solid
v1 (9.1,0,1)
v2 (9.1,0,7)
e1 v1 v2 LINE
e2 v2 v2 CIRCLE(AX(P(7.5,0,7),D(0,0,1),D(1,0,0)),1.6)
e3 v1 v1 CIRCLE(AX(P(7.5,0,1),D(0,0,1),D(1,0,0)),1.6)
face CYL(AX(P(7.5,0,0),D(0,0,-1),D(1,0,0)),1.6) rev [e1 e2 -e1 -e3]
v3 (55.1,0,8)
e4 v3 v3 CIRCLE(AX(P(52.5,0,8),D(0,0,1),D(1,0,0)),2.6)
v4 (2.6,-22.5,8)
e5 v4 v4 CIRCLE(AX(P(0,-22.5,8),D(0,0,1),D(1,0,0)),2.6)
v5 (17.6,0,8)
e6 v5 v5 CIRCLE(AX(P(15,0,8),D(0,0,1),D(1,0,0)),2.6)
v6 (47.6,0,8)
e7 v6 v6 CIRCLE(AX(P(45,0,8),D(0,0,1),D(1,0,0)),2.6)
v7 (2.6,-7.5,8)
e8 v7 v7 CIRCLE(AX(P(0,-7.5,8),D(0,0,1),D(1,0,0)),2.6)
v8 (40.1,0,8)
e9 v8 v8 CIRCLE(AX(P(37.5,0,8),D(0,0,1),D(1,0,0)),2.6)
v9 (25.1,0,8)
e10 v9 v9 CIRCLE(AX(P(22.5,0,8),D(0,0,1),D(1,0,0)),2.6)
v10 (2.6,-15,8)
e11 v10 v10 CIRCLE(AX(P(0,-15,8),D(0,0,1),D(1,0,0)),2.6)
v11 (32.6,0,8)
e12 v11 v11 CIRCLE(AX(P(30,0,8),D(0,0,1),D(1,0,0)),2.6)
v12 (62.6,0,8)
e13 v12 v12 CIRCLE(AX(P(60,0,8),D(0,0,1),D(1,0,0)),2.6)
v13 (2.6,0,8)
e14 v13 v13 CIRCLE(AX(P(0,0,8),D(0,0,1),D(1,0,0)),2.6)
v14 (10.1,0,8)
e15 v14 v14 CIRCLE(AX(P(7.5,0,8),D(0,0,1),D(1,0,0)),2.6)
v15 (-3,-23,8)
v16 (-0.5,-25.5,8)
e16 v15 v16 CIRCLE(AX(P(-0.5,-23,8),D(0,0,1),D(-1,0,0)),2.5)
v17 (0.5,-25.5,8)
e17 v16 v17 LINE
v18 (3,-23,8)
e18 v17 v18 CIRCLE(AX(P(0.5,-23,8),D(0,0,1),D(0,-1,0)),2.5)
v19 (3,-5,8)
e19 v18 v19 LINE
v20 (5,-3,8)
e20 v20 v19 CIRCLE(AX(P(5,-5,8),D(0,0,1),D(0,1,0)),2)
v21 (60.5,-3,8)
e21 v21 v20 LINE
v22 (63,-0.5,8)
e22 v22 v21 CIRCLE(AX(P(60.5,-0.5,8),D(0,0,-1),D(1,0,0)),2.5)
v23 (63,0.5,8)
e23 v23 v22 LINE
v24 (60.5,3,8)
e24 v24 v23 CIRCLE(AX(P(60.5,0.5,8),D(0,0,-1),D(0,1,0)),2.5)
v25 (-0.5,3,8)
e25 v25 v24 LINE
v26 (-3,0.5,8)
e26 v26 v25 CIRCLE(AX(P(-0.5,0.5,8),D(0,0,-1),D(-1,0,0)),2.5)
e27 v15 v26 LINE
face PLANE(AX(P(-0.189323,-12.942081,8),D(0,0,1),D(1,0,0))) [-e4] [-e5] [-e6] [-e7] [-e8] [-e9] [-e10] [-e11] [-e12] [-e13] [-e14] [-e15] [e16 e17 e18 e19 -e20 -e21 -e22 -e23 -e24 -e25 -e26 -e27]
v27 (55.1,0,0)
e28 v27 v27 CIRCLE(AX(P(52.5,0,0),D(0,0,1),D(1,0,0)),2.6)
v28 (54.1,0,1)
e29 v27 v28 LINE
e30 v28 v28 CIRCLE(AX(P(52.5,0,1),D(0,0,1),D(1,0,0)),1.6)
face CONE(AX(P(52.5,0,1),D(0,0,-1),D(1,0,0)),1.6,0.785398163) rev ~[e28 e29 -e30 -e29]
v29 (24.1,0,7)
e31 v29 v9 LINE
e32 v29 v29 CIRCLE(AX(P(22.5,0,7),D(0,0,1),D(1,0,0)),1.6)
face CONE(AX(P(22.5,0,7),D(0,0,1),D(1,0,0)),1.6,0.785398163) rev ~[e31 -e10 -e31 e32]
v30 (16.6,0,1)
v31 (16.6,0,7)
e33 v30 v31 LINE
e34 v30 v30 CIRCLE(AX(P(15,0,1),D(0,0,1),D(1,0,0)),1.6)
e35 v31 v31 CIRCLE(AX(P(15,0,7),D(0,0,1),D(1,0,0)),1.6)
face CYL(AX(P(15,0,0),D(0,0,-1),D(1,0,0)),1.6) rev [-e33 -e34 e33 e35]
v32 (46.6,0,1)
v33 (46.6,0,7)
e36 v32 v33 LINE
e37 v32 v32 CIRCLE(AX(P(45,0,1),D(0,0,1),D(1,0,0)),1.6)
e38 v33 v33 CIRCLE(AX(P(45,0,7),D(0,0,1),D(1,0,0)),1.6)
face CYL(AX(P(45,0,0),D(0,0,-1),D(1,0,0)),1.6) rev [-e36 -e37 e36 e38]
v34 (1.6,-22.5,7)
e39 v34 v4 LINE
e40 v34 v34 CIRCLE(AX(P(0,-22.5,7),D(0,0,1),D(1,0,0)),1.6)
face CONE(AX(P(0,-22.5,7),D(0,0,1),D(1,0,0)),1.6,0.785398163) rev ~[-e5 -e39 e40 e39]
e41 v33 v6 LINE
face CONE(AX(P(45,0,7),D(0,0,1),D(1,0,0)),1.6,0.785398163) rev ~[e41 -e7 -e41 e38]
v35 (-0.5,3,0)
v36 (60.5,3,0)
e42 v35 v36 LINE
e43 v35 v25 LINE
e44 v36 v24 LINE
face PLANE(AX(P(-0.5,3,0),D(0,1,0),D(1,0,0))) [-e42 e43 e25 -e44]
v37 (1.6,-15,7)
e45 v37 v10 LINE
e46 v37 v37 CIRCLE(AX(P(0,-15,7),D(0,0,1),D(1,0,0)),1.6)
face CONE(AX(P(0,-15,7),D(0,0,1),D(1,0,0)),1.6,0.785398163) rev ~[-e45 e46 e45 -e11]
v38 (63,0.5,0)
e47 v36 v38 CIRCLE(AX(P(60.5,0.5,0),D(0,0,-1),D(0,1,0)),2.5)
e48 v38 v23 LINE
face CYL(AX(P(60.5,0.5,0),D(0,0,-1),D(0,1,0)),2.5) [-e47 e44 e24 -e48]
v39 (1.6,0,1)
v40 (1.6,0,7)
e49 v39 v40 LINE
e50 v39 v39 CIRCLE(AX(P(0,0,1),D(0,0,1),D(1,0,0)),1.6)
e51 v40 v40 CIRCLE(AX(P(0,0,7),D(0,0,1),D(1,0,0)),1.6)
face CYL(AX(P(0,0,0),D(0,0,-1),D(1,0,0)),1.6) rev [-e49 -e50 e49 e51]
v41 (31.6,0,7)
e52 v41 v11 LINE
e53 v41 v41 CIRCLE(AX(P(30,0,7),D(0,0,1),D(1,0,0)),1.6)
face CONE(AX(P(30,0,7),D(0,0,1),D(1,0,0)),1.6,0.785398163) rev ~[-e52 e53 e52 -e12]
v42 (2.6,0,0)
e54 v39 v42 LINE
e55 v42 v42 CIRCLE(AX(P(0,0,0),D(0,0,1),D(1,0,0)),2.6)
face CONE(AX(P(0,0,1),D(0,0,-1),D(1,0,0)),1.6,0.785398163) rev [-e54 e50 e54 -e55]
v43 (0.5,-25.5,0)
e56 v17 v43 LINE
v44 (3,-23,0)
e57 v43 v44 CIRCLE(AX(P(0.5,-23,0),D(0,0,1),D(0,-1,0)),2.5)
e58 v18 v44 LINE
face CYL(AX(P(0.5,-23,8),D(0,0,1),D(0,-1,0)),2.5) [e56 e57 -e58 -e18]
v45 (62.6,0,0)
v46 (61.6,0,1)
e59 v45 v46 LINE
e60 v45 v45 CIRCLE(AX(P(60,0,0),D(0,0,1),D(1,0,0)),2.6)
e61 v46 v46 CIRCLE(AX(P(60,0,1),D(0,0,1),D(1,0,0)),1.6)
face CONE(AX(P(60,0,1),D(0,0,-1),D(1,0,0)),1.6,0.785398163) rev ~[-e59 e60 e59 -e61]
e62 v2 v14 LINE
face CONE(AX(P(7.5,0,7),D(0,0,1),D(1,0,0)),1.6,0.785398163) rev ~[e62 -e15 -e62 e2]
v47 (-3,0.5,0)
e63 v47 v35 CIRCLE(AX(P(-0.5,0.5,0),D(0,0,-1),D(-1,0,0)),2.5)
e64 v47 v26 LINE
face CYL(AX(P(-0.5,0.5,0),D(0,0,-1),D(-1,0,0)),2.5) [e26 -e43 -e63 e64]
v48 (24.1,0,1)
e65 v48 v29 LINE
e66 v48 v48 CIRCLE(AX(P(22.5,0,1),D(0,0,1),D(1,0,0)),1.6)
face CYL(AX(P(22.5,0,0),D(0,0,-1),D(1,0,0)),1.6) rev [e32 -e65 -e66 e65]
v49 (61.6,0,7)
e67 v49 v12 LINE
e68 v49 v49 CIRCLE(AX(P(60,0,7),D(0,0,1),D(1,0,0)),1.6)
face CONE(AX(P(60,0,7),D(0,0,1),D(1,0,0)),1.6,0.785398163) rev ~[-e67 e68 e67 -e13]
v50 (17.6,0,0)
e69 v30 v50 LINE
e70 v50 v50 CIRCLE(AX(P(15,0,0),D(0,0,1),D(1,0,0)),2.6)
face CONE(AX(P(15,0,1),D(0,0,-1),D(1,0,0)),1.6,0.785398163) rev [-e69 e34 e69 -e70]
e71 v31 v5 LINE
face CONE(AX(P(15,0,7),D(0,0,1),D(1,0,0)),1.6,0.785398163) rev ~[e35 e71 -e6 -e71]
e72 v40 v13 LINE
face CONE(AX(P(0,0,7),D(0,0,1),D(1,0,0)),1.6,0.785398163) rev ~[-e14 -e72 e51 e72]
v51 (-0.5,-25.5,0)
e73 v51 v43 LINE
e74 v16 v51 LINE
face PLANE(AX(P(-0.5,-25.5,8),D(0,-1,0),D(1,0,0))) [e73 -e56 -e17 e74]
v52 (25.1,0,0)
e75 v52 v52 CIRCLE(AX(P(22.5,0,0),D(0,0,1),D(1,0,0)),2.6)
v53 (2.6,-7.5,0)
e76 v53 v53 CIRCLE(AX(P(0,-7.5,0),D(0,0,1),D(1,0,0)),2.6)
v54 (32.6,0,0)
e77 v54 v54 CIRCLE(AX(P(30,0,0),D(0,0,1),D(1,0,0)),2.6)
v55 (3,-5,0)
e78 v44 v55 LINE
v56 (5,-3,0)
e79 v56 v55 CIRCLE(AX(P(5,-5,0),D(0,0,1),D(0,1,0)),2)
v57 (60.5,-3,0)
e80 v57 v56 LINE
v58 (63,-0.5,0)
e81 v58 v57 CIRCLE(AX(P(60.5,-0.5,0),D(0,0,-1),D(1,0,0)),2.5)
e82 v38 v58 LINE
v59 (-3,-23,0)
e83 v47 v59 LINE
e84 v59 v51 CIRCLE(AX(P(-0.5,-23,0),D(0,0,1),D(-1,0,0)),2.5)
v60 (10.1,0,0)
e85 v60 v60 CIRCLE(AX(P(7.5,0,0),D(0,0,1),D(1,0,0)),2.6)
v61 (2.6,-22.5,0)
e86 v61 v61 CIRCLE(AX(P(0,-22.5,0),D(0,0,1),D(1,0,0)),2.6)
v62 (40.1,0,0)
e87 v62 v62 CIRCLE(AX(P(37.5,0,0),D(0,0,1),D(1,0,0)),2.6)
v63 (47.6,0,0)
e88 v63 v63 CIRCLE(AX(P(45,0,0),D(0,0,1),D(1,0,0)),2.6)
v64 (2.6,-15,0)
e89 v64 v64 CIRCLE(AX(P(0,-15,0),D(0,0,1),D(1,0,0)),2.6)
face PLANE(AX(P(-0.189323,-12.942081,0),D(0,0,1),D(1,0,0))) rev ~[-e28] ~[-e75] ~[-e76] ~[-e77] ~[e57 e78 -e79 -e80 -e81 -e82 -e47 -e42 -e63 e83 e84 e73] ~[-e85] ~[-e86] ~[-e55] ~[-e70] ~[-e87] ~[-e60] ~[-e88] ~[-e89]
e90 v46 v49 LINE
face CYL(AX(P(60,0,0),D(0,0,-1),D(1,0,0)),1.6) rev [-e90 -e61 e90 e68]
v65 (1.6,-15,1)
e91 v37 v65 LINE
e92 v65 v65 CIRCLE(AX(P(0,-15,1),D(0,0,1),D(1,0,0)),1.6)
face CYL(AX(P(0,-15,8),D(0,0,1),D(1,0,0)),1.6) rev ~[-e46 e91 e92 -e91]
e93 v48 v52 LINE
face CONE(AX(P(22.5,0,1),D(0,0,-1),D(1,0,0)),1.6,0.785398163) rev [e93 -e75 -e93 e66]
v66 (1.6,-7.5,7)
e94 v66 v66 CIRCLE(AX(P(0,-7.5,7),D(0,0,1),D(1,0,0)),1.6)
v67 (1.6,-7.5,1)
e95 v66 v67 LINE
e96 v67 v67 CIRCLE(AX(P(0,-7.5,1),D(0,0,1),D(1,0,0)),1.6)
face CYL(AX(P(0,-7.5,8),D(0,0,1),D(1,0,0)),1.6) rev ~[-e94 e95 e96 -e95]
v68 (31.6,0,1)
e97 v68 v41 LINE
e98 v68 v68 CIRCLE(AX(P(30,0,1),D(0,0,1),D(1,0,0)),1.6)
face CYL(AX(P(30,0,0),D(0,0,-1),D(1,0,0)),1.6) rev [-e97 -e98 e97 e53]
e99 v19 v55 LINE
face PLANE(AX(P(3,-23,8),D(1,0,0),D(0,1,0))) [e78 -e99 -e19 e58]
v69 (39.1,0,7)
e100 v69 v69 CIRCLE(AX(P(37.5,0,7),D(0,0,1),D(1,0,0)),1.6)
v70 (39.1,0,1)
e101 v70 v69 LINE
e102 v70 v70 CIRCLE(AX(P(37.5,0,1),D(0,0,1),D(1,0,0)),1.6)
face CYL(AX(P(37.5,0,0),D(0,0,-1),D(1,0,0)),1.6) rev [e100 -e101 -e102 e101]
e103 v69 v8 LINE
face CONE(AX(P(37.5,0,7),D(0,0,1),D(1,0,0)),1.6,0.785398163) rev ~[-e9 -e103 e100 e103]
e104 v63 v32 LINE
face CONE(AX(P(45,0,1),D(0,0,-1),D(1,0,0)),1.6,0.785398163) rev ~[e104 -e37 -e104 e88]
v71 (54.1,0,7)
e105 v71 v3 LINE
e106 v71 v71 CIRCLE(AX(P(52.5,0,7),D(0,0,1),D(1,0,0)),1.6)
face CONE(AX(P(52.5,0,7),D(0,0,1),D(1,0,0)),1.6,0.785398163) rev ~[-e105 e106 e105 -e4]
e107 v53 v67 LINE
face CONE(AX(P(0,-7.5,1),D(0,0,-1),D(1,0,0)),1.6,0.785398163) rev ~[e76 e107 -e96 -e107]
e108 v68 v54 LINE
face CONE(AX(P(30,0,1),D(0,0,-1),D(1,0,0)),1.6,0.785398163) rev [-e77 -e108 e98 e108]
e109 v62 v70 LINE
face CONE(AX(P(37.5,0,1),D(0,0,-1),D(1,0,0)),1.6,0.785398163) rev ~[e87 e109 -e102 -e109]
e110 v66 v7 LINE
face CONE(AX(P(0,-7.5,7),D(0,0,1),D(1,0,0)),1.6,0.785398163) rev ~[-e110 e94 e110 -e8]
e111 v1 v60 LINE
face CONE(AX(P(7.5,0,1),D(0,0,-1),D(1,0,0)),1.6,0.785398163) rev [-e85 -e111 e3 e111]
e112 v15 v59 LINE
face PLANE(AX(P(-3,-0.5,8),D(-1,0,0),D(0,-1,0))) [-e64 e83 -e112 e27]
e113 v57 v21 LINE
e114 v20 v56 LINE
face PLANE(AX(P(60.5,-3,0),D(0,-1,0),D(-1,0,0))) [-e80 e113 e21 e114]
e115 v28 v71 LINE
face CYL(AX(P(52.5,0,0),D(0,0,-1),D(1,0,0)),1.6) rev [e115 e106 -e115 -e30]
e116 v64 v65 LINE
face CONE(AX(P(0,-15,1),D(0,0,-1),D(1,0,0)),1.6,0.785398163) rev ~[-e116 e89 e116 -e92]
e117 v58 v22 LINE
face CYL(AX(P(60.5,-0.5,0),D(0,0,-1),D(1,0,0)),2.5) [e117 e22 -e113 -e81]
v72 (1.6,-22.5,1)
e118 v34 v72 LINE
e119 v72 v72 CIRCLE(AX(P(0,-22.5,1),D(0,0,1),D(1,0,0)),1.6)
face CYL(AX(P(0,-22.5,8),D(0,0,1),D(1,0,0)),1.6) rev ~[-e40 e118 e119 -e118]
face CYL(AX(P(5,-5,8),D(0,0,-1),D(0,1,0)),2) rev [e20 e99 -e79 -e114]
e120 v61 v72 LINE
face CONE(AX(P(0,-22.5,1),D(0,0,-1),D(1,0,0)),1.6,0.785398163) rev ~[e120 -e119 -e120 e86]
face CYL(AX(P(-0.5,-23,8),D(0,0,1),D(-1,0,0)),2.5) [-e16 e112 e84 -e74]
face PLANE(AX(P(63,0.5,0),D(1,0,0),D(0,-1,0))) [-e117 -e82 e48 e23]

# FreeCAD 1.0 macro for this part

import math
import FreeCAD as App
import Part
import Sketcher
Q = App.Units.Quantity


def edges_at(feature, points):
    """Names of the edges that pass closest to the given points."""
    edges = feature.Shape.Edges
    near = lambda p: min(range(len(edges)), key=lambda i: edges[i].distToShape(Part.Vertex(*p))[0])
    return sorted({f"Edge{near(p) + 1}" for p in points})

doc = App.newDocument("Part")
params = doc.addObject("Spreadsheet::Sheet", "Params")
for row, (alias, value) in enumerate([
    ("sketch1_diameter", "3.2 mm"),
    ("sketch1_radius", "2.5 mm"),
    ("sketch1_width", "61 mm"),
    ("sketch1_height", "1 mm"),
    ("pad1_length", "8 mm"),
    ("chamfer_size", "1 mm"),
    ("sketch2_diameter", "3.2 mm"),
    ("sketch2_radius", "2.5 mm"),
    ("sketch2_width", "1 mm"),
    ("sketch2_height", "20 mm"),
    ("pad2_length", "8 mm"),
    ("fillet_radius", "2 mm"),
    ("chamfer2_size", "1 mm"),
    ("chamfer3_size", "1 mm"),
    ("chamfer4_size", "1 mm"),
], start=1):
    params.set(f"A{row}", alias)
    params.set(f"B{row}", "=" + value)
    params.setAlias(f"B{row}", alias)

body = doc.addObject("PartDesign::Body", "Body")

# Sketch on XY plane
sketch1 = body.newObject("Sketcher::SketchObject", "Sketch")
sketch1.AttachmentSupport = (doc.getObject("XY_Plane"), [""])
sketch1.MapMode = "FlatFace"
sketch1.addGeometry(Part.LineSegment(App.Vector(60.5, 3, 0), App.Vector(-0.5, 3, 0)), False)
sketch1.addGeometry(Part.ArcOfCircle(Part.Circle(App.Vector(-0.5, 0.5, 0), App.Vector(0, 0, 1), 2.5), math.radians(90), math.radians(180)), False)
sketch1.addGeometry(Part.LineSegment(App.Vector(-3, 0.5, 0), App.Vector(-3, -0.5, 0)), False)
sketch1.addGeometry(Part.ArcOfCircle(Part.Circle(App.Vector(-0.5, -0.5, 0), App.Vector(0, 0, 1), 2.5), math.radians(180), math.radians(270)), False)
sketch1.addGeometry(Part.LineSegment(App.Vector(-0.5, -3, 0), App.Vector(60.5, -3, 0)), False)
sketch1.addGeometry(Part.ArcOfCircle(Part.Circle(App.Vector(60.5, -0.5, 0), App.Vector(0, 0, 1), 2.5), math.radians(-90), math.radians(0)), False)
sketch1.addGeometry(Part.LineSegment(App.Vector(63, -0.5, 0), App.Vector(63, 0.5, 0)), False)
sketch1.addGeometry(Part.ArcOfCircle(Part.Circle(App.Vector(60.5, 0.5, 0), App.Vector(0, 0, 1), 2.5), math.radians(0), math.radians(90)), False)
sketch1.addGeometry(Part.Circle(App.Vector(60, 0, 0), App.Vector(0, 0, 1), 1.6), False)
sketch1.addGeometry(Part.Circle(App.Vector(52.5, 0, 0), App.Vector(0, 0, 1), 1.6), False)
sketch1.addGeometry(Part.Circle(App.Vector(45, 0, 0), App.Vector(0, 0, 1), 1.6), False)
sketch1.addGeometry(Part.Circle(App.Vector(37.5, 0, 0), App.Vector(0, 0, 1), 1.6), False)
sketch1.addGeometry(Part.Circle(App.Vector(30, 0, 0), App.Vector(0, 0, 1), 1.6), False)
sketch1.addGeometry(Part.Circle(App.Vector(22.5, 0, 0), App.Vector(0, 0, 1), 1.6), False)
sketch1.addGeometry(Part.Circle(App.Vector(15, 0, 0), App.Vector(0, 0, 1), 1.6), False)
sketch1.addGeometry(Part.Circle(App.Vector(7.5, 0, 0), App.Vector(0, 0, 1), 1.6), False)
sketch1.addGeometry(Part.Circle(App.Vector(0, 0, 0), App.Vector(0, 0, 1), 1.6), False)
sketch1.addConstraint(Sketcher.Constraint("Tangent", 0, 2, 1, 1))
sketch1.addConstraint(Sketcher.Constraint("Tangent", 1, 2, 2, 1))
sketch1.addConstraint(Sketcher.Constraint("Tangent", 2, 2, 3, 1))
sketch1.addConstraint(Sketcher.Constraint("Tangent", 3, 2, 4, 1))
sketch1.addConstraint(Sketcher.Constraint("Tangent", 4, 2, 5, 1))
sketch1.addConstraint(Sketcher.Constraint("Tangent", 5, 2, 6, 1))
sketch1.addConstraint(Sketcher.Constraint("Tangent", 6, 2, 7, 1))
sketch1.addConstraint(Sketcher.Constraint("Tangent", 7, 2, 0, 1))
sketch1.addConstraint(Sketcher.Constraint("Horizontal", 0))
sketch1.addConstraint(Sketcher.Constraint("Vertical", 2))
sketch1.addConstraint(Sketcher.Constraint("Horizontal", 4))
sketch1.addConstraint(Sketcher.Constraint("Vertical", 6))
sketch1.addConstraint(Sketcher.Constraint("Coincident", 16, 3, -1, 1))
sketch1.addConstraint(Sketcher.Constraint("Equal", 1, 3))
sketch1.addConstraint(Sketcher.Constraint("Equal", 3, 5))
sketch1.addConstraint(Sketcher.Constraint("Equal", 5, 7))
sketch1.addConstraint(Sketcher.Constraint("Equal", 8, 9))
sketch1.addConstraint(Sketcher.Constraint("Equal", 9, 10))
sketch1.addConstraint(Sketcher.Constraint("Equal", 10, 11))
sketch1.addConstraint(Sketcher.Constraint("Equal", 11, 12))
sketch1.addConstraint(Sketcher.Constraint("Equal", 12, 13))
sketch1.addConstraint(Sketcher.Constraint("Equal", 13, 14))
sketch1.addConstraint(Sketcher.Constraint("Equal", 14, 15))
sketch1.addConstraint(Sketcher.Constraint("Equal", 15, 16))
sketch1.addConstraint(Sketcher.Constraint("PointOnObject", 8, 3, -1))
sketch1.addConstraint(Sketcher.Constraint("PointOnObject", 9, 3, -1))
sketch1.addConstraint(Sketcher.Constraint("PointOnObject", 10, 3, -1))
sketch1.addConstraint(Sketcher.Constraint("PointOnObject", 11, 3, -1))
sketch1.addConstraint(Sketcher.Constraint("PointOnObject", 12, 3, -1))
sketch1.addConstraint(Sketcher.Constraint("PointOnObject", 13, 3, -1))
sketch1.addConstraint(Sketcher.Constraint("PointOnObject", 14, 3, -1))
sketch1.addConstraint(Sketcher.Constraint("PointOnObject", 15, 3, -1))
sketch1.addConstraint(Sketcher.Constraint("Diameter", 8, Q("3.2 mm")))
sketch1.addConstraint(Sketcher.Constraint("Radius", 1, Q("2.5 mm")))
sketch1.addConstraint(Sketcher.Constraint("DistanceX", 0, 2, 0, 1, Q("61 mm")))
sketch1.addConstraint(Sketcher.Constraint("DistanceY", 2, 2, 2, 1, Q("1 mm")))
sketch1.addConstraint(Sketcher.Constraint("DistanceX", -1, 1, 8, 3, Q("60 mm")))
sketch1.addConstraint(Sketcher.Constraint("DistanceX", -1, 1, 10, 3, Q("45 mm")))
sketch1.addConstraint(Sketcher.Constraint("DistanceX", -1, 1, 12, 3, Q("30 mm")))
sketch1.addConstraint(Sketcher.Constraint("DistanceX", -1, 1, 14, 3, Q("15 mm")))
sketch1.addConstraint(Sketcher.Constraint("DistanceY", -1, 1, 0, 2, Q("3 mm")))
sketch1.addConstraint(Sketcher.Constraint("DistanceX", 1, 2, -1, 1, Q("3 mm")))
sketch1.addConstraint(Sketcher.Constraint("DistanceX", 9, 3, 5, 3, Q("8 mm")))
sketch1.addConstraint(Sketcher.Constraint("DistanceX", 11, 3, 9, 3, Q("15 mm")))
sketch1.addConstraint(Sketcher.Constraint("DistanceX", 13, 3, 11, 3, Q("15 mm")))
sketch1.addConstraint(Sketcher.Constraint("DistanceX", 1, 3, 15, 3, Q("8 mm")))
sketch1.setExpression("Constraints[32]", "Params.sketch1_diameter")
sketch1.setExpression("Constraints[33]", "Params.sketch1_radius")
sketch1.setExpression("Constraints[34]", "Params.sketch1_width")
sketch1.setExpression("Constraints[35]", "Params.sketch1_height")
pad1 = body.newObject("PartDesign::Pad", "Pad")
pad1.Profile = sketch1
pad1.setExpression("Length", "Params.pad1_length")
doc.recompute()

chamfer = body.newObject("PartDesign::Chamfer", "Chamfer")
chamfer.Base = (pad1, edges_at(pad1, [
    (-1.6, 0, 0),
    (-1.6, 0, 8),
    (5.9, 0, 0),
    (5.9, 0, 8),
    (13.4, 0, 0),
    (13.4, 0, 8),
    (20.9, 0, 0),
    (20.9, 0, 8),
    (28.4, 0, 0),
    (28.4, 0, 8),
]))
chamfer.setExpression("Size", "Params.chamfer_size")

# Sketch on XY plane
sketch2 = body.newObject("Sketcher::SketchObject", "Sketch001")
sketch2.AttachmentSupport = (doc.getObject("XY_Plane"), [""])
sketch2.MapMode = "FlatFace"
sketch2.AttachmentOffset = App.Placement(App.Vector(0, 0, 8), App.Rotation())
sketch2.addGeometry(Part.ArcOfCircle(Part.Circle(App.Vector(-0.5, -0.5, 0), App.Vector(0, 0, 1), 2.5), math.radians(180), math.radians(270)), False)
sketch2.addGeometry(Part.LineSegment(App.Vector(-3, -0.5, 0), App.Vector(-3, -23, 0)), False)
sketch2.addGeometry(Part.ArcOfCircle(Part.Circle(App.Vector(-0.5, -23, 0), App.Vector(0, 0, 1), 2.5), math.radians(180), math.radians(270)), False)
sketch2.addGeometry(Part.LineSegment(App.Vector(-0.5, -25.5, 0), App.Vector(0.5, -25.5, 0)), False)
sketch2.addGeometry(Part.ArcOfCircle(Part.Circle(App.Vector(0.5, -23, 0), App.Vector(0, 0, 1), 2.5), math.radians(-90), math.radians(0)), False)
sketch2.addGeometry(Part.LineSegment(App.Vector(3, -23, 0), App.Vector(3, -3, 0)), False)
sketch2.addGeometry(Part.LineSegment(App.Vector(3, -3, 0), App.Vector(-0.5, -3, 0)), False)
sketch2.addGeometry(Part.Circle(App.Vector(0, -22.5, 0), App.Vector(0, 0, 1), 1.6), False)
sketch2.addGeometry(Part.Circle(App.Vector(0, -15, 0), App.Vector(0, 0, 1), 1.6), False)
sketch2.addGeometry(Part.Circle(App.Vector(0, -7.5, 0), App.Vector(0, 0, 1), 1.6), False)
sketch2.addConstraint(Sketcher.Constraint("Tangent", 0, 1, 1, 1))
sketch2.addConstraint(Sketcher.Constraint("Tangent", 1, 2, 2, 1))
sketch2.addConstraint(Sketcher.Constraint("Tangent", 2, 2, 3, 1))
sketch2.addConstraint(Sketcher.Constraint("Tangent", 3, 2, 4, 1))
sketch2.addConstraint(Sketcher.Constraint("Tangent", 4, 2, 5, 1))
sketch2.addConstraint(Sketcher.Constraint("Coincident", 5, 2, 6, 1))
sketch2.addConstraint(Sketcher.Constraint("Tangent", 6, 2, 0, 2))
sketch2.addConstraint(Sketcher.Constraint("Vertical", 1))
sketch2.addConstraint(Sketcher.Constraint("Horizontal", 3))
sketch2.addConstraint(Sketcher.Constraint("Vertical", 5))
sketch2.addConstraint(Sketcher.Constraint("Horizontal", 6))
sketch2.addConstraint(Sketcher.Constraint("Equal", 0, 2))
sketch2.addConstraint(Sketcher.Constraint("Equal", 2, 4))
sketch2.addConstraint(Sketcher.Constraint("Equal", 7, 8))
sketch2.addConstraint(Sketcher.Constraint("Equal", 8, 9))
sketch2.addConstraint(Sketcher.Constraint("PointOnObject", 7, 3, -2))
sketch2.addConstraint(Sketcher.Constraint("PointOnObject", 8, 3, -2))
sketch2.addConstraint(Sketcher.Constraint("PointOnObject", 9, 3, -2))
sketch2.addConstraint(Sketcher.Constraint("Diameter", 7, Q("3.2 mm")))
sketch2.addConstraint(Sketcher.Constraint("Radius", 0, Q("2.5 mm")))
sketch2.addConstraint(Sketcher.Constraint("DistanceX", 3, 1, 3, 2, Q("1 mm")))
sketch2.addConstraint(Sketcher.Constraint("DistanceY", 5, 1, 5, 2, Q("20 mm")))
sketch2.addConstraint(Sketcher.Constraint("DistanceY", 2, 3, -1, 1, Q("23 mm")))
sketch2.addConstraint(Sketcher.Constraint("DistanceY", 8, 3, -1, 1, Q("15 mm")))
sketch2.addConstraint(Sketcher.Constraint("DistanceX", 0, 1, -1, 1, Q("3 mm")))
sketch2.addConstraint(Sketcher.Constraint("DistanceY", 7, 3, 0, 3, Q("22 mm")))
sketch2.addConstraint(Sketcher.Constraint("DistanceY", 9, 3, 0, 3, Q("7 mm")))
sketch2.setExpression("Constraints[18]", "Params.sketch2_diameter")
sketch2.setExpression("Constraints[19]", "Params.sketch2_radius")
sketch2.setExpression("Constraints[20]", "Params.sketch2_width")
sketch2.setExpression("Constraints[21]", "Params.sketch2_height")
pad2 = body.newObject("PartDesign::Pad", "Pad001")
pad2.Profile = sketch2
pad2.setExpression("Length", "Params.pad2_length")
pad2.Reversed = True
doc.recompute()

fillet = body.newObject("PartDesign::Fillet", "Fillet")
fillet.Base = (pad2, edges_at(pad2, [(3, -3, 4)]))
fillet.setExpression("Radius", "Params.fillet_radius")
doc.recompute()

chamfer2 = body.newObject("PartDesign::Chamfer", "Chamfer001")
chamfer2.Base = (fillet, edges_at(fillet, [
    (35.9, 0, 0),
    (35.9, 0, 8),
    (43.4, 0, 0),
    (43.4, 0, 8),
]))
chamfer2.setExpression("Size", "Params.chamfer2_size")
doc.recompute()

chamfer3 = body.newObject("PartDesign::Chamfer", "Chamfer002")
chamfer3.Base = (chamfer2, edges_at(chamfer2, [
    (50.9, 0, 0),
    (50.9, 0, 8),
    (58.4, 0, 0),
    (58.4, 0, 8),
]))
chamfer3.setExpression("Size", "Params.chamfer3_size")
doc.recompute()

chamfer4 = body.newObject("PartDesign::Chamfer", "Chamfer003")
chamfer4.Base = (chamfer3, edges_at(chamfer3, [
    (-1.6, -7.5, 8),
    (-1.6, -15, 8),
    (-1.6, -22.5, 8),
    (-1.6, -22.5, 0),
    (-1.6, -15, 0),
    (-1.6, -7.5, 0),
]))
chamfer4.setExpression("Size", "Params.chamfer4_size")

doc.recompute()
